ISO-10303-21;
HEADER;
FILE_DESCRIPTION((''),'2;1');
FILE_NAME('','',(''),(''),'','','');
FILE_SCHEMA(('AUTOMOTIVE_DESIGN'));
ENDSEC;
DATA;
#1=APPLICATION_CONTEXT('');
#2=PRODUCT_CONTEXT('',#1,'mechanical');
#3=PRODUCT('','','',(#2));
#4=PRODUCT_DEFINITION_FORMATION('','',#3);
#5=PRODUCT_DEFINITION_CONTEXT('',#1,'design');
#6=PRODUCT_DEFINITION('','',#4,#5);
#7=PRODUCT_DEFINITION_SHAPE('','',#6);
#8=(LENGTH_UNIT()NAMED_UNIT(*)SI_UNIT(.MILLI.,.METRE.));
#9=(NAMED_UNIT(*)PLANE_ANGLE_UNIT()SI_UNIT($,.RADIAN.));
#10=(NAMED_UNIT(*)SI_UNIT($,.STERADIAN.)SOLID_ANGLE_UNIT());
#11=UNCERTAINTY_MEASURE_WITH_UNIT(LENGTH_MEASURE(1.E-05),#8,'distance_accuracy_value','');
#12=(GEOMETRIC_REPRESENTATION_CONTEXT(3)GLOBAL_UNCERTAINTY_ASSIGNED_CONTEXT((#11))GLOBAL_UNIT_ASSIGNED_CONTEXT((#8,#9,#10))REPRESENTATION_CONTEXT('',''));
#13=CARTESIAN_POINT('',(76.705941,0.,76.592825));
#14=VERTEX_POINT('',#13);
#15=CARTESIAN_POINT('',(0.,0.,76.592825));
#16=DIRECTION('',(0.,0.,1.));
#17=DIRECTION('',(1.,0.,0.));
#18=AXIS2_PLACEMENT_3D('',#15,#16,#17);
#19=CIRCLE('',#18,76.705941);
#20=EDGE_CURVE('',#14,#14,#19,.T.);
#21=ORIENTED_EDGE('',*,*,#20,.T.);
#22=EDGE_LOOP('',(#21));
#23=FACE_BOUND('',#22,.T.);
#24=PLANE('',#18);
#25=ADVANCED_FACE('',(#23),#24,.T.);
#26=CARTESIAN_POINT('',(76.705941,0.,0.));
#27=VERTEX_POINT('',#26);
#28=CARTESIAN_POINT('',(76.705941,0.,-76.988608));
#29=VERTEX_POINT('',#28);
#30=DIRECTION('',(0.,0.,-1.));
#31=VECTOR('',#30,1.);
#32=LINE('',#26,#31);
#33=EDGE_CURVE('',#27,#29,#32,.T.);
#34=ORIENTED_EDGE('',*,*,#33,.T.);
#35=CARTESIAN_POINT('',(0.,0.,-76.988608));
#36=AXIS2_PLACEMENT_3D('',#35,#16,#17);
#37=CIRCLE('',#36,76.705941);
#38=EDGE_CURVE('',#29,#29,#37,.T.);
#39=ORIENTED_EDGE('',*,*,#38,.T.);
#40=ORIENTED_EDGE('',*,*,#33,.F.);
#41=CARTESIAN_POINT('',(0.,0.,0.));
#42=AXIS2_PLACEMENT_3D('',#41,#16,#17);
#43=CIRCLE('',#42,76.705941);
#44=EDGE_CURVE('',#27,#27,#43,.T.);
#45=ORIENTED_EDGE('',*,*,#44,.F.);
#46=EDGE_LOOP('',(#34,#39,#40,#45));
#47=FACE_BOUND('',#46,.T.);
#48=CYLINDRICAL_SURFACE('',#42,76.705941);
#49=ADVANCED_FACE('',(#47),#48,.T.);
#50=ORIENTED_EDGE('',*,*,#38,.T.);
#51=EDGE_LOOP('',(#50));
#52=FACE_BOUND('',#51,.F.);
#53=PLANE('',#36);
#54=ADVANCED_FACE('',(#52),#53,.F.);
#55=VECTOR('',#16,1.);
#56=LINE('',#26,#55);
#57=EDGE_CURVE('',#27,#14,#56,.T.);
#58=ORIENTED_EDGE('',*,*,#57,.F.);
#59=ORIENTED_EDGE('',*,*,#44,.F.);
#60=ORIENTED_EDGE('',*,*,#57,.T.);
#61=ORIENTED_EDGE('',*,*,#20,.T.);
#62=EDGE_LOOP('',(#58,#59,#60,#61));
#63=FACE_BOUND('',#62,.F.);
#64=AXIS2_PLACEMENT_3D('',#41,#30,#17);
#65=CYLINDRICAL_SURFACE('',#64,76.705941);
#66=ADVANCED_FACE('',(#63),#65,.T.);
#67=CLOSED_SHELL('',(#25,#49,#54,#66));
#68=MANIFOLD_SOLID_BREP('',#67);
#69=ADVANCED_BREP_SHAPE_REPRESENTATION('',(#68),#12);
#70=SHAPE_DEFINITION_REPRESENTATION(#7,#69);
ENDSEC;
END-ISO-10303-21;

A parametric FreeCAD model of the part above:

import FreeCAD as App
import Part
import Sketcher

V = App.Vector
Q = App.Units.Quantity

doc = App.newDocument("Part")
params = doc.addObject("Spreadsheet::Sheet", "Params")
for row, (alias, value) in enumerate([
    ("pad1_length", "76.988608 mm"),
    ("pad2_length", "76.592825 mm"),
], start=1):
    params.set(f"A{row}", alias)
    params.set(f"B{row}", "=" + value)
    params.setAlias(f"B{row}", alias)

body = doc.addObject("PartDesign::Body", "Body")

sketch1 = body.newObject("Sketcher::SketchObject", "Sketch")
sketch1.AttachmentSupport = (doc.getObject("XY_Plane"), [""])
sketch1.MapMode = "FlatFace"
sketch1.addGeometry(Part.Circle(V(0, 0, 0), V(0, 0, 1), 76.705941), False)
sketch1.addConstraint(Sketcher.Constraint("Coincident", 0, 3, -1, 1))
sketch1.addConstraint(Sketcher.Constraint("Diameter", 0, Q("153.411882 mm")))
pad1 = body.newObject("PartDesign::Pad", "Pad")
pad1.Profile = sketch1
pad1.setExpression("Length", "Params.pad1_length")
pad1.Reversed = True

sketch2 = body.newObject("Sketcher::SketchObject", "Sketch001")
sketch2.AttachmentSupport = (doc.getObject("XY_Plane"), [""])
sketch2.MapMode = "FlatFace"
sketch2.addGeometry(Part.Circle(V(0, 0, 0), V(0, 0, 1), 76.705941), False)
sketch2.addConstraint(Sketcher.Constraint("Coincident", 0, 3, -1, 1))
sketch2.addConstraint(Sketcher.Constraint("Diameter", 0, Q("153.411882 mm")))
pad2 = body.newObject("PartDesign::Pad", "Pad001")
pad2.Profile = sketch2
pad2.setExpression("Length", "Params.pad2_length")

doc.recompute()
